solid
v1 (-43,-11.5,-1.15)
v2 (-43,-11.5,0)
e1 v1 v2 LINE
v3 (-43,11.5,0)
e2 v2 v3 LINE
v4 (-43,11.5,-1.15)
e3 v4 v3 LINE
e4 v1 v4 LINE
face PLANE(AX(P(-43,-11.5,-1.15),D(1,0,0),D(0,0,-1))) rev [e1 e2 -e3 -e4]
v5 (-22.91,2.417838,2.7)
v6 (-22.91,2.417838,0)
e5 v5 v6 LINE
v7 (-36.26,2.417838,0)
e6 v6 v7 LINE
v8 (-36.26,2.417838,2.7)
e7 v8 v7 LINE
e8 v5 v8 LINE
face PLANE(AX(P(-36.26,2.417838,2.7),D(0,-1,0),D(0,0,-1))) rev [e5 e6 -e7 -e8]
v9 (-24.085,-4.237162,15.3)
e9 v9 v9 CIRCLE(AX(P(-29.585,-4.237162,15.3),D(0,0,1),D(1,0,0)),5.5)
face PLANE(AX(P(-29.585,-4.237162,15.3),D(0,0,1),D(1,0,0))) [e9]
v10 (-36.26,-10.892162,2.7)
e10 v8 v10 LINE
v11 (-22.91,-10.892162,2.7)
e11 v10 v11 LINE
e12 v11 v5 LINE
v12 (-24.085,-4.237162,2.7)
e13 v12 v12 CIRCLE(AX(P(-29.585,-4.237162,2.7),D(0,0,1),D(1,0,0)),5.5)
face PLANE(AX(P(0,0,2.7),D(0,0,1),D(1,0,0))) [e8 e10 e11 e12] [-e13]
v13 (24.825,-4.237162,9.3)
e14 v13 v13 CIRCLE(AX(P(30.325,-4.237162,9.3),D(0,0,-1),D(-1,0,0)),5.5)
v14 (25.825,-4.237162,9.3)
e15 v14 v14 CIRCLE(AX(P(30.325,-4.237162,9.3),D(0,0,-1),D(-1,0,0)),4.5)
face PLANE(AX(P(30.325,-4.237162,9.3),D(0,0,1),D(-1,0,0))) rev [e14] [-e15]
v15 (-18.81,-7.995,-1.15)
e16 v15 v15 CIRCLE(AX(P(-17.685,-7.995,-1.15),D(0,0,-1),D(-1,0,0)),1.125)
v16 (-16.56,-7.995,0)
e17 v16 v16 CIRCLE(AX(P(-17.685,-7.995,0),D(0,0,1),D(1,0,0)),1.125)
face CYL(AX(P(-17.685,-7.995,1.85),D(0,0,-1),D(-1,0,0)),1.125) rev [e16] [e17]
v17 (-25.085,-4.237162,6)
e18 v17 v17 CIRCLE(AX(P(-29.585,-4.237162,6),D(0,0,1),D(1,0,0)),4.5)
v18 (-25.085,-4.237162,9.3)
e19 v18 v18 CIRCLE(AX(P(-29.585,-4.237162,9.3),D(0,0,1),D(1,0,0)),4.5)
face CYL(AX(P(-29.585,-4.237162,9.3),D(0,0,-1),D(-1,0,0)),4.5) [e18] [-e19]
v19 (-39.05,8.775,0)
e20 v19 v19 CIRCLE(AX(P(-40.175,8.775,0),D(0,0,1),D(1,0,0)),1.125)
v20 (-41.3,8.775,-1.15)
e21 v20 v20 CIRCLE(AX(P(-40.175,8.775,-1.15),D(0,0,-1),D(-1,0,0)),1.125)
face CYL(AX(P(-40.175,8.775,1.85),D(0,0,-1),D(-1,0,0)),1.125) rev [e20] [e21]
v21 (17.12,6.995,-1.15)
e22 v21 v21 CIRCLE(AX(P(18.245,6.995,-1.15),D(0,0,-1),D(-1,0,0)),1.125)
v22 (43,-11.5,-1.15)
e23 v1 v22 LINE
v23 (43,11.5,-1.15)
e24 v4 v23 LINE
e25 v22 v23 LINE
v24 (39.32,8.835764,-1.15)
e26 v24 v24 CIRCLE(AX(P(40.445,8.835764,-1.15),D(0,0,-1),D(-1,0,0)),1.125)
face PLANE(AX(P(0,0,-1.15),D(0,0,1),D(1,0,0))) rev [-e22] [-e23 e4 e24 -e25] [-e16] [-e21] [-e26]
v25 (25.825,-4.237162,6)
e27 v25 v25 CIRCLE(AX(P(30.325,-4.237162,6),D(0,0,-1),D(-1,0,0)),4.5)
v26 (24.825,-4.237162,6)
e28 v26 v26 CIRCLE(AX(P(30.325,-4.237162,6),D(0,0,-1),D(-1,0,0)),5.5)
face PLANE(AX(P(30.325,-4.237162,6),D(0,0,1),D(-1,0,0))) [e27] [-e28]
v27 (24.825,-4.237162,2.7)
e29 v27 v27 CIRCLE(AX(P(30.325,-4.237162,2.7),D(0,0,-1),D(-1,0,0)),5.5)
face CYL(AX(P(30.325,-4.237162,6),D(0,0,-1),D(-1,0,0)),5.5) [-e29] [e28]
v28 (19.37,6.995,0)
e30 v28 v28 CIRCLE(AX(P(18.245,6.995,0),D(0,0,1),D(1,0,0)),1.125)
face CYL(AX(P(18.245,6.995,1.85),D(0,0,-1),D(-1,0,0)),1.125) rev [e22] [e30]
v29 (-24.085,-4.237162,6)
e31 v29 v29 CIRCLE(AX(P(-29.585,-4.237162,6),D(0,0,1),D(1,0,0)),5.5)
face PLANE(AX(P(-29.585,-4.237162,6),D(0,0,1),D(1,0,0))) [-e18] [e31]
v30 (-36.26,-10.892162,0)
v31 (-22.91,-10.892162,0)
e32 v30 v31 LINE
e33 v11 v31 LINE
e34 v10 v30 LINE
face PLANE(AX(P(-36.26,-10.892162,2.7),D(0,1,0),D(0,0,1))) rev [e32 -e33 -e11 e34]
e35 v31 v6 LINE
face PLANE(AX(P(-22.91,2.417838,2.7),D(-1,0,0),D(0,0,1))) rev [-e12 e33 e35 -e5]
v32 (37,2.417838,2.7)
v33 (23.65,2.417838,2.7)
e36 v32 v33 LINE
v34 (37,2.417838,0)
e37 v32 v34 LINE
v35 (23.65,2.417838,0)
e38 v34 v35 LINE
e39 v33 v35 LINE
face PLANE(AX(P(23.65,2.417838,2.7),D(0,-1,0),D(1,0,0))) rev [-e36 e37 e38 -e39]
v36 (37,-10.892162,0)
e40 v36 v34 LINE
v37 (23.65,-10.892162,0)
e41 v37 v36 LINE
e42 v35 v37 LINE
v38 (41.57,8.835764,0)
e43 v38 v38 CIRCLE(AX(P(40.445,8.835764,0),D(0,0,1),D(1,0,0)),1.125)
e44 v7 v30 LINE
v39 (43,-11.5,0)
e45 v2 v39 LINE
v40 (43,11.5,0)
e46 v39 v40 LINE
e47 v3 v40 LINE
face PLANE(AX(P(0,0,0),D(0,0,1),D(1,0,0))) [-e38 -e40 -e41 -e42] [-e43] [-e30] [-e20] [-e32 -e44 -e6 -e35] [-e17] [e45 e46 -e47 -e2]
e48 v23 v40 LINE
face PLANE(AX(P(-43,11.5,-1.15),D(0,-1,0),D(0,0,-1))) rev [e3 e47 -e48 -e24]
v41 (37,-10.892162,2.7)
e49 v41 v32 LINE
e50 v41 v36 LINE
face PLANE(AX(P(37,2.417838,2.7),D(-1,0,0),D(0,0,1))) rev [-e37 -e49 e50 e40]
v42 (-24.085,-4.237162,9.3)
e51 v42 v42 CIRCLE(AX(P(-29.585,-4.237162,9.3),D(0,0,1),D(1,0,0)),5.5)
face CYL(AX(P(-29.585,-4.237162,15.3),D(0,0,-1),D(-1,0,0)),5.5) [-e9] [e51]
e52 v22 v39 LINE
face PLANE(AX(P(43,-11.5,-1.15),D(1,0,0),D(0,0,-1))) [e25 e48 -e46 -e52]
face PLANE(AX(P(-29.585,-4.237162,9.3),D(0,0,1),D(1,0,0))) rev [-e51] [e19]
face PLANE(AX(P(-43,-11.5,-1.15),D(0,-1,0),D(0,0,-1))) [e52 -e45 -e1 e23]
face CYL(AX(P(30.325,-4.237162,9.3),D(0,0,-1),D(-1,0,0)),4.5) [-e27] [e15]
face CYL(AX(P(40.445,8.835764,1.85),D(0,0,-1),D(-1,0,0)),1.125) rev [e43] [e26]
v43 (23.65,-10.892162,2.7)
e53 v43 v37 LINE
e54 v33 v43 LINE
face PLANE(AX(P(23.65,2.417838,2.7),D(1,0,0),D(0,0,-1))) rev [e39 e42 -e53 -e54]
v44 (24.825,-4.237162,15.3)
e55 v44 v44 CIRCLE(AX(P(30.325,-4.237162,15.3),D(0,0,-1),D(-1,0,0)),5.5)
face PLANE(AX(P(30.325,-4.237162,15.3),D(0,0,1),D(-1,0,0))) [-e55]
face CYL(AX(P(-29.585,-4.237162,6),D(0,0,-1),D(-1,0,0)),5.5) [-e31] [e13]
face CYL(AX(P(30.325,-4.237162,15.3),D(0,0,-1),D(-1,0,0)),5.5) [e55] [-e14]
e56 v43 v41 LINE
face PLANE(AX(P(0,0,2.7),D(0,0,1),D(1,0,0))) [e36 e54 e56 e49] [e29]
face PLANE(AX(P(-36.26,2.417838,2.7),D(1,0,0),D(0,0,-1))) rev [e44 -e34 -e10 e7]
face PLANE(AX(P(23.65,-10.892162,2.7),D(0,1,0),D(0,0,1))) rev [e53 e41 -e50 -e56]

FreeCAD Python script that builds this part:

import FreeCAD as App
import Part
import Sketcher

V = App.Vector
Q = App.Units.Quantity

doc = App.newDocument("Part")
body = doc.addObject("PartDesign::Body", "Body")

sketch1 = doc.addObject("Sketcher::SketchObject", "Sketch")
body.addObject(sketch1)
sketch1.AttachmentSupport = (doc.XY_Plane, [""])
sketch1.MapMode = "FlatFace"
sketch1.addGeometry([
    Part.LineSegment(V(-43, 11.5, 0), V(-43, -11.5, 0)),
    Part.LineSegment(V(-43, -11.5, 0), V(43, -11.5, 0)),
    Part.LineSegment(V(43, -11.5, 0), V(43, 11.5, 0)),
    Part.LineSegment(V(43, 11.5, 0), V(-43, 11.5, 0)),
], False)
sketch1.addConstraint([
    Sketcher.Constraint("Coincident", 0, 2, 1, 1),
    Sketcher.Constraint("Coincident", 1, 2, 2, 1),
    Sketcher.Constraint("Coincident", 2, 2, 3, 1),
    Sketcher.Constraint("Coincident", 3, 2, 0, 1),
    Sketcher.Constraint("Vertical", 0),
    Sketcher.Constraint("Horizontal", 1),
    Sketcher.Constraint("Vertical", 2),
    Sketcher.Constraint("Horizontal", 3),
    Sketcher.Constraint("Symmetric", 0, 2, 2, 2, -1, 1),
    Sketcher.Constraint("DistanceX", 1, 1, 1, 2, Q("86 mm")),
    Sketcher.Constraint("DistanceY", 0, 2, 0, 1, Q("23 mm")),
])
pad1 = doc.addObject("PartDesign::Pad", "Pad")
body.addObject(pad1)
pad1.Profile = sketch1
pad1.Length = 1.15
pad1.Reversed = True

sketch2 = doc.addObject("Sketcher::SketchObject", "Sketch001")
body.addObject(sketch2)
sketch2.AttachmentSupport = (doc.XY_Plane, [""])
sketch2.MapMode = "FlatFace"
sketch2.addGeometry([
    Part.LineSegment(V(-36.26, 2.417838, 0), V(-36.26, -10.892162, 0)),
    Part.LineSegment(V(-36.26, -10.892162, 0), V(-22.91, -10.892162, 0)),
    Part.LineSegment(V(-22.91, -10.892162, 0), V(-22.91, 2.417838, 0)),
    Part.LineSegment(V(-22.91, 2.417838, 0), V(-36.26, 2.417838, 0)),
    Part.LineSegment(V(23.65, 2.417838, 0), V(23.65, -10.892162, 0)),
    Part.LineSegment(V(23.65, -10.892162, 0), V(37, -10.892162, 0)),
    Part.LineSegment(V(37, -10.892162, 0), V(37, 2.417838, 0)),
    Part.LineSegment(V(37, 2.417838, 0), V(23.65, 2.417838, 0)),
], False)
sketch2.addConstraint([
    Sketcher.Constraint("Coincident", 0, 2, 1, 1),
    Sketcher.Constraint("Coincident", 1, 2, 2, 1),
    Sketcher.Constraint("Coincident", 2, 2, 3, 1),
    Sketcher.Constraint("Coincident", 3, 2, 0, 1),
    Sketcher.Constraint("Coincident", 4, 2, 5, 1),
    Sketcher.Constraint("Coincident", 5, 2, 6, 1),
    Sketcher.Constraint("Coincident", 6, 2, 7, 1),
    Sketcher.Constraint("Coincident", 7, 2, 4, 1),
    Sketcher.Constraint("Vertical", 0),
    Sketcher.Constraint("Horizontal", 1),
    Sketcher.Constraint("Vertical", 2),
    Sketcher.Constraint("Horizontal", 3),
    Sketcher.Constraint("Vertical", 4),
    Sketcher.Constraint("Horizontal", 5),
    Sketcher.Constraint("Vertical", 6),
    Sketcher.Constraint("Horizontal", 7),
    Sketcher.Constraint("Horizontal", 1, 2, 4, 2),
    Sketcher.Constraint("Horizontal", 3, 2, 6, 2),
    Sketcher.Constraint("Equal", 3, 5),
    Sketcher.Constraint("DistanceX", -1, 1, 5, 2, Q("37 mm")),
    Sketcher.Constraint("DistanceX", 1, 1, 1, 2, Q("13.35 mm")),
    Sketcher.Constraint("DistanceY", 0, 2, 0, 1, Q("13.31 mm")),
    Sketcher.Constraint("DistanceX", 0, 2, -1, 1, Q("36.26 mm")),
    Sketcher.Constraint("DistanceY", 0, 2, -1, 1, Q("10.892162 mm")),
])
pad2 = doc.addObject("PartDesign::Pad", "Pad001")
body.addObject(pad2)
pad2.Profile = sketch2
pad2.Length = 2.7

sketch3 = doc.addObject("Sketcher::SketchObject", "Sketch002")
body.addObject(sketch3)
sketch3.AttachmentSupport = (doc.XY_Plane, [""])
sketch3.MapMode = "FlatFace"
sketch3.AttachmentOffset = App.Placement(V(0, 0, 2.7), App.Rotation())
sketch3.addGeometry(Part.Circle(V(-29.585, -4.237162, 0), V(0, 0, 1), 5.5), False)
sketch3.addConstraint([
    Sketcher.Constraint("Diameter", 0, Q("11 mm")),
    Sketcher.Constraint("DistanceX", 0, 3, -1, 1, Q("29.585 mm")),
    Sketcher.Constraint("DistanceY", 0, 3, -1, 1, Q("4.237162 mm")),
])
pad3 = doc.addObject("PartDesign::Pad", "Pad002")
body.addObject(pad3)
pad3.Profile = sketch3
pad3.Length = 3.3

sketch4 = doc.addObject("Sketcher::SketchObject", "Sketch003")
body.addObject(sketch4)
sketch4.AttachmentSupport = (doc.XY_Plane, [""])
sketch4.MapMode = "FlatFace"
sketch4.AttachmentOffset = App.Placement(V(0, 0, 6), App.Rotation())
sketch4.addGeometry(Part.Circle(V(-29.585, -4.237162, 0), V(0, 0, 1), 4.5), False)
sketch4.addConstraint([
    Sketcher.Constraint("Diameter", 0, Q("9 mm")),
    Sketcher.Constraint("DistanceX", 0, 3, -1, 1, Q("29.585 mm")),
    Sketcher.Constraint("DistanceY", 0, 3, -1, 1, Q("4.237162 mm")),
])
pad4 = doc.addObject("PartDesign::Pad", "Pad003")
body.addObject(pad4)
pad4.Profile = sketch4
pad4.Length = 3.3

sketch5 = doc.addObject("Sketcher::SketchObject", "Sketch004")
body.addObject(sketch5)
sketch5.AttachmentSupport = (doc.XY_Plane, [""])
sketch5.MapMode = "FlatFace"
sketch5.AttachmentOffset = App.Placement(V(0, 0, 9.3), App.Rotation())
sketch5.addGeometry(Part.Circle(V(-29.585, -4.237162, 0), V(0, 0, 1), 5.5), False)
sketch5.addConstraint([
    Sketcher.Constraint("Diameter", 0, Q("11 mm")),
    Sketcher.Constraint("DistanceX", 0, 3, -1, 1, Q("29.585 mm")),
    Sketcher.Constraint("DistanceY", 0, 3, -1, 1, Q("4.237162 mm")),
])
pad5 = doc.addObject("PartDesign::Pad", "Pad004")
body.addObject(pad5)
pad5.Profile = sketch5
pad5.Length = 6
doc.recompute()

datumplane = doc.addObject("PartDesign::Plane", "DatumPlane")
body.addObject(datumplane)
datumplane.AttachmentSupport = (doc.YZ_Plane, [""])
datumplane.MapMode = "FlatFace"
datumplane.AttachmentOffset = App.Placement(V(0, 0, 0.37), App.Rotation())
mirrored = doc.addObject("PartDesign::Mirrored", "Mirrored")
body.addObject(mirrored)
mirrored.Originals = [pad3, pad4, pad5]
mirrored.MirrorPlane = (datumplane, [""])
body.Tip = mirrored

sketch6 = doc.addObject("Sketcher::SketchObject", "Sketch005")
body.addObject(sketch6)
sketch6.AttachmentSupport = (doc.XY_Plane, [""])
sketch6.MapMode = "FlatFace"
sketch6.AttachmentOffset = App.Placement(V(0, 0, -1.15), App.Rotation())
sketch6.addGeometry([
    Part.Circle(V(-40.175, 8.775, 0), V(0, 0, 1), 1.125),
    Part.Circle(V(-17.685, -7.995, 0), V(0, 0, 1), 1.125),
    Part.Circle(V(18.245, 6.995, 0), V(0, 0, 1), 1.125),
    Part.Circle(V(40.445, 8.835764, 0), V(0, 0, 1), 1.125),
], False)
sketch6.addConstraint([
    Sketcher.Constraint("Equal", 0, 1),
    Sketcher.Constraint("Equal", 1, 2),
    Sketcher.Constraint("Equal", 2, 3),
    Sketcher.Constraint("Diameter", 0, Q("2.25 mm")),
    Sketcher.Constraint("DistanceX", 2, 3, 3, 3, Q("22.2 mm")),
    Sketcher.Constraint("DistanceX", 0, 3, 1, 3, Q("22.49 mm")),
    Sketcher.Constraint("DistanceY", 1, 3, 0, 3, Q("16.77 mm")),
    Sketcher.Constraint("DistanceX", 1, 3, 2, 3, Q("35.93 mm")),
    Sketcher.Constraint("DistanceY", 1, 3, 2, 3, Q("14.99 mm")),
    Sketcher.Constraint("DistanceX", 0, 3, -1, 1, Q("40.175 mm")),
    Sketcher.Constraint("DistanceY", -1, 1, 0, 3, Q("8.775 mm")),
    Sketcher.Constraint("DistanceY", -1, 1, 3, 3, Q("8.835764 mm")),
])
pocket1 = doc.addObject("PartDesign::Pocket", "Pocket")
body.addObject(pocket1)
pocket1.Profile = sketch6
pocket1.Length = 3
pocket1.Reversed = True

doc.recompute()
